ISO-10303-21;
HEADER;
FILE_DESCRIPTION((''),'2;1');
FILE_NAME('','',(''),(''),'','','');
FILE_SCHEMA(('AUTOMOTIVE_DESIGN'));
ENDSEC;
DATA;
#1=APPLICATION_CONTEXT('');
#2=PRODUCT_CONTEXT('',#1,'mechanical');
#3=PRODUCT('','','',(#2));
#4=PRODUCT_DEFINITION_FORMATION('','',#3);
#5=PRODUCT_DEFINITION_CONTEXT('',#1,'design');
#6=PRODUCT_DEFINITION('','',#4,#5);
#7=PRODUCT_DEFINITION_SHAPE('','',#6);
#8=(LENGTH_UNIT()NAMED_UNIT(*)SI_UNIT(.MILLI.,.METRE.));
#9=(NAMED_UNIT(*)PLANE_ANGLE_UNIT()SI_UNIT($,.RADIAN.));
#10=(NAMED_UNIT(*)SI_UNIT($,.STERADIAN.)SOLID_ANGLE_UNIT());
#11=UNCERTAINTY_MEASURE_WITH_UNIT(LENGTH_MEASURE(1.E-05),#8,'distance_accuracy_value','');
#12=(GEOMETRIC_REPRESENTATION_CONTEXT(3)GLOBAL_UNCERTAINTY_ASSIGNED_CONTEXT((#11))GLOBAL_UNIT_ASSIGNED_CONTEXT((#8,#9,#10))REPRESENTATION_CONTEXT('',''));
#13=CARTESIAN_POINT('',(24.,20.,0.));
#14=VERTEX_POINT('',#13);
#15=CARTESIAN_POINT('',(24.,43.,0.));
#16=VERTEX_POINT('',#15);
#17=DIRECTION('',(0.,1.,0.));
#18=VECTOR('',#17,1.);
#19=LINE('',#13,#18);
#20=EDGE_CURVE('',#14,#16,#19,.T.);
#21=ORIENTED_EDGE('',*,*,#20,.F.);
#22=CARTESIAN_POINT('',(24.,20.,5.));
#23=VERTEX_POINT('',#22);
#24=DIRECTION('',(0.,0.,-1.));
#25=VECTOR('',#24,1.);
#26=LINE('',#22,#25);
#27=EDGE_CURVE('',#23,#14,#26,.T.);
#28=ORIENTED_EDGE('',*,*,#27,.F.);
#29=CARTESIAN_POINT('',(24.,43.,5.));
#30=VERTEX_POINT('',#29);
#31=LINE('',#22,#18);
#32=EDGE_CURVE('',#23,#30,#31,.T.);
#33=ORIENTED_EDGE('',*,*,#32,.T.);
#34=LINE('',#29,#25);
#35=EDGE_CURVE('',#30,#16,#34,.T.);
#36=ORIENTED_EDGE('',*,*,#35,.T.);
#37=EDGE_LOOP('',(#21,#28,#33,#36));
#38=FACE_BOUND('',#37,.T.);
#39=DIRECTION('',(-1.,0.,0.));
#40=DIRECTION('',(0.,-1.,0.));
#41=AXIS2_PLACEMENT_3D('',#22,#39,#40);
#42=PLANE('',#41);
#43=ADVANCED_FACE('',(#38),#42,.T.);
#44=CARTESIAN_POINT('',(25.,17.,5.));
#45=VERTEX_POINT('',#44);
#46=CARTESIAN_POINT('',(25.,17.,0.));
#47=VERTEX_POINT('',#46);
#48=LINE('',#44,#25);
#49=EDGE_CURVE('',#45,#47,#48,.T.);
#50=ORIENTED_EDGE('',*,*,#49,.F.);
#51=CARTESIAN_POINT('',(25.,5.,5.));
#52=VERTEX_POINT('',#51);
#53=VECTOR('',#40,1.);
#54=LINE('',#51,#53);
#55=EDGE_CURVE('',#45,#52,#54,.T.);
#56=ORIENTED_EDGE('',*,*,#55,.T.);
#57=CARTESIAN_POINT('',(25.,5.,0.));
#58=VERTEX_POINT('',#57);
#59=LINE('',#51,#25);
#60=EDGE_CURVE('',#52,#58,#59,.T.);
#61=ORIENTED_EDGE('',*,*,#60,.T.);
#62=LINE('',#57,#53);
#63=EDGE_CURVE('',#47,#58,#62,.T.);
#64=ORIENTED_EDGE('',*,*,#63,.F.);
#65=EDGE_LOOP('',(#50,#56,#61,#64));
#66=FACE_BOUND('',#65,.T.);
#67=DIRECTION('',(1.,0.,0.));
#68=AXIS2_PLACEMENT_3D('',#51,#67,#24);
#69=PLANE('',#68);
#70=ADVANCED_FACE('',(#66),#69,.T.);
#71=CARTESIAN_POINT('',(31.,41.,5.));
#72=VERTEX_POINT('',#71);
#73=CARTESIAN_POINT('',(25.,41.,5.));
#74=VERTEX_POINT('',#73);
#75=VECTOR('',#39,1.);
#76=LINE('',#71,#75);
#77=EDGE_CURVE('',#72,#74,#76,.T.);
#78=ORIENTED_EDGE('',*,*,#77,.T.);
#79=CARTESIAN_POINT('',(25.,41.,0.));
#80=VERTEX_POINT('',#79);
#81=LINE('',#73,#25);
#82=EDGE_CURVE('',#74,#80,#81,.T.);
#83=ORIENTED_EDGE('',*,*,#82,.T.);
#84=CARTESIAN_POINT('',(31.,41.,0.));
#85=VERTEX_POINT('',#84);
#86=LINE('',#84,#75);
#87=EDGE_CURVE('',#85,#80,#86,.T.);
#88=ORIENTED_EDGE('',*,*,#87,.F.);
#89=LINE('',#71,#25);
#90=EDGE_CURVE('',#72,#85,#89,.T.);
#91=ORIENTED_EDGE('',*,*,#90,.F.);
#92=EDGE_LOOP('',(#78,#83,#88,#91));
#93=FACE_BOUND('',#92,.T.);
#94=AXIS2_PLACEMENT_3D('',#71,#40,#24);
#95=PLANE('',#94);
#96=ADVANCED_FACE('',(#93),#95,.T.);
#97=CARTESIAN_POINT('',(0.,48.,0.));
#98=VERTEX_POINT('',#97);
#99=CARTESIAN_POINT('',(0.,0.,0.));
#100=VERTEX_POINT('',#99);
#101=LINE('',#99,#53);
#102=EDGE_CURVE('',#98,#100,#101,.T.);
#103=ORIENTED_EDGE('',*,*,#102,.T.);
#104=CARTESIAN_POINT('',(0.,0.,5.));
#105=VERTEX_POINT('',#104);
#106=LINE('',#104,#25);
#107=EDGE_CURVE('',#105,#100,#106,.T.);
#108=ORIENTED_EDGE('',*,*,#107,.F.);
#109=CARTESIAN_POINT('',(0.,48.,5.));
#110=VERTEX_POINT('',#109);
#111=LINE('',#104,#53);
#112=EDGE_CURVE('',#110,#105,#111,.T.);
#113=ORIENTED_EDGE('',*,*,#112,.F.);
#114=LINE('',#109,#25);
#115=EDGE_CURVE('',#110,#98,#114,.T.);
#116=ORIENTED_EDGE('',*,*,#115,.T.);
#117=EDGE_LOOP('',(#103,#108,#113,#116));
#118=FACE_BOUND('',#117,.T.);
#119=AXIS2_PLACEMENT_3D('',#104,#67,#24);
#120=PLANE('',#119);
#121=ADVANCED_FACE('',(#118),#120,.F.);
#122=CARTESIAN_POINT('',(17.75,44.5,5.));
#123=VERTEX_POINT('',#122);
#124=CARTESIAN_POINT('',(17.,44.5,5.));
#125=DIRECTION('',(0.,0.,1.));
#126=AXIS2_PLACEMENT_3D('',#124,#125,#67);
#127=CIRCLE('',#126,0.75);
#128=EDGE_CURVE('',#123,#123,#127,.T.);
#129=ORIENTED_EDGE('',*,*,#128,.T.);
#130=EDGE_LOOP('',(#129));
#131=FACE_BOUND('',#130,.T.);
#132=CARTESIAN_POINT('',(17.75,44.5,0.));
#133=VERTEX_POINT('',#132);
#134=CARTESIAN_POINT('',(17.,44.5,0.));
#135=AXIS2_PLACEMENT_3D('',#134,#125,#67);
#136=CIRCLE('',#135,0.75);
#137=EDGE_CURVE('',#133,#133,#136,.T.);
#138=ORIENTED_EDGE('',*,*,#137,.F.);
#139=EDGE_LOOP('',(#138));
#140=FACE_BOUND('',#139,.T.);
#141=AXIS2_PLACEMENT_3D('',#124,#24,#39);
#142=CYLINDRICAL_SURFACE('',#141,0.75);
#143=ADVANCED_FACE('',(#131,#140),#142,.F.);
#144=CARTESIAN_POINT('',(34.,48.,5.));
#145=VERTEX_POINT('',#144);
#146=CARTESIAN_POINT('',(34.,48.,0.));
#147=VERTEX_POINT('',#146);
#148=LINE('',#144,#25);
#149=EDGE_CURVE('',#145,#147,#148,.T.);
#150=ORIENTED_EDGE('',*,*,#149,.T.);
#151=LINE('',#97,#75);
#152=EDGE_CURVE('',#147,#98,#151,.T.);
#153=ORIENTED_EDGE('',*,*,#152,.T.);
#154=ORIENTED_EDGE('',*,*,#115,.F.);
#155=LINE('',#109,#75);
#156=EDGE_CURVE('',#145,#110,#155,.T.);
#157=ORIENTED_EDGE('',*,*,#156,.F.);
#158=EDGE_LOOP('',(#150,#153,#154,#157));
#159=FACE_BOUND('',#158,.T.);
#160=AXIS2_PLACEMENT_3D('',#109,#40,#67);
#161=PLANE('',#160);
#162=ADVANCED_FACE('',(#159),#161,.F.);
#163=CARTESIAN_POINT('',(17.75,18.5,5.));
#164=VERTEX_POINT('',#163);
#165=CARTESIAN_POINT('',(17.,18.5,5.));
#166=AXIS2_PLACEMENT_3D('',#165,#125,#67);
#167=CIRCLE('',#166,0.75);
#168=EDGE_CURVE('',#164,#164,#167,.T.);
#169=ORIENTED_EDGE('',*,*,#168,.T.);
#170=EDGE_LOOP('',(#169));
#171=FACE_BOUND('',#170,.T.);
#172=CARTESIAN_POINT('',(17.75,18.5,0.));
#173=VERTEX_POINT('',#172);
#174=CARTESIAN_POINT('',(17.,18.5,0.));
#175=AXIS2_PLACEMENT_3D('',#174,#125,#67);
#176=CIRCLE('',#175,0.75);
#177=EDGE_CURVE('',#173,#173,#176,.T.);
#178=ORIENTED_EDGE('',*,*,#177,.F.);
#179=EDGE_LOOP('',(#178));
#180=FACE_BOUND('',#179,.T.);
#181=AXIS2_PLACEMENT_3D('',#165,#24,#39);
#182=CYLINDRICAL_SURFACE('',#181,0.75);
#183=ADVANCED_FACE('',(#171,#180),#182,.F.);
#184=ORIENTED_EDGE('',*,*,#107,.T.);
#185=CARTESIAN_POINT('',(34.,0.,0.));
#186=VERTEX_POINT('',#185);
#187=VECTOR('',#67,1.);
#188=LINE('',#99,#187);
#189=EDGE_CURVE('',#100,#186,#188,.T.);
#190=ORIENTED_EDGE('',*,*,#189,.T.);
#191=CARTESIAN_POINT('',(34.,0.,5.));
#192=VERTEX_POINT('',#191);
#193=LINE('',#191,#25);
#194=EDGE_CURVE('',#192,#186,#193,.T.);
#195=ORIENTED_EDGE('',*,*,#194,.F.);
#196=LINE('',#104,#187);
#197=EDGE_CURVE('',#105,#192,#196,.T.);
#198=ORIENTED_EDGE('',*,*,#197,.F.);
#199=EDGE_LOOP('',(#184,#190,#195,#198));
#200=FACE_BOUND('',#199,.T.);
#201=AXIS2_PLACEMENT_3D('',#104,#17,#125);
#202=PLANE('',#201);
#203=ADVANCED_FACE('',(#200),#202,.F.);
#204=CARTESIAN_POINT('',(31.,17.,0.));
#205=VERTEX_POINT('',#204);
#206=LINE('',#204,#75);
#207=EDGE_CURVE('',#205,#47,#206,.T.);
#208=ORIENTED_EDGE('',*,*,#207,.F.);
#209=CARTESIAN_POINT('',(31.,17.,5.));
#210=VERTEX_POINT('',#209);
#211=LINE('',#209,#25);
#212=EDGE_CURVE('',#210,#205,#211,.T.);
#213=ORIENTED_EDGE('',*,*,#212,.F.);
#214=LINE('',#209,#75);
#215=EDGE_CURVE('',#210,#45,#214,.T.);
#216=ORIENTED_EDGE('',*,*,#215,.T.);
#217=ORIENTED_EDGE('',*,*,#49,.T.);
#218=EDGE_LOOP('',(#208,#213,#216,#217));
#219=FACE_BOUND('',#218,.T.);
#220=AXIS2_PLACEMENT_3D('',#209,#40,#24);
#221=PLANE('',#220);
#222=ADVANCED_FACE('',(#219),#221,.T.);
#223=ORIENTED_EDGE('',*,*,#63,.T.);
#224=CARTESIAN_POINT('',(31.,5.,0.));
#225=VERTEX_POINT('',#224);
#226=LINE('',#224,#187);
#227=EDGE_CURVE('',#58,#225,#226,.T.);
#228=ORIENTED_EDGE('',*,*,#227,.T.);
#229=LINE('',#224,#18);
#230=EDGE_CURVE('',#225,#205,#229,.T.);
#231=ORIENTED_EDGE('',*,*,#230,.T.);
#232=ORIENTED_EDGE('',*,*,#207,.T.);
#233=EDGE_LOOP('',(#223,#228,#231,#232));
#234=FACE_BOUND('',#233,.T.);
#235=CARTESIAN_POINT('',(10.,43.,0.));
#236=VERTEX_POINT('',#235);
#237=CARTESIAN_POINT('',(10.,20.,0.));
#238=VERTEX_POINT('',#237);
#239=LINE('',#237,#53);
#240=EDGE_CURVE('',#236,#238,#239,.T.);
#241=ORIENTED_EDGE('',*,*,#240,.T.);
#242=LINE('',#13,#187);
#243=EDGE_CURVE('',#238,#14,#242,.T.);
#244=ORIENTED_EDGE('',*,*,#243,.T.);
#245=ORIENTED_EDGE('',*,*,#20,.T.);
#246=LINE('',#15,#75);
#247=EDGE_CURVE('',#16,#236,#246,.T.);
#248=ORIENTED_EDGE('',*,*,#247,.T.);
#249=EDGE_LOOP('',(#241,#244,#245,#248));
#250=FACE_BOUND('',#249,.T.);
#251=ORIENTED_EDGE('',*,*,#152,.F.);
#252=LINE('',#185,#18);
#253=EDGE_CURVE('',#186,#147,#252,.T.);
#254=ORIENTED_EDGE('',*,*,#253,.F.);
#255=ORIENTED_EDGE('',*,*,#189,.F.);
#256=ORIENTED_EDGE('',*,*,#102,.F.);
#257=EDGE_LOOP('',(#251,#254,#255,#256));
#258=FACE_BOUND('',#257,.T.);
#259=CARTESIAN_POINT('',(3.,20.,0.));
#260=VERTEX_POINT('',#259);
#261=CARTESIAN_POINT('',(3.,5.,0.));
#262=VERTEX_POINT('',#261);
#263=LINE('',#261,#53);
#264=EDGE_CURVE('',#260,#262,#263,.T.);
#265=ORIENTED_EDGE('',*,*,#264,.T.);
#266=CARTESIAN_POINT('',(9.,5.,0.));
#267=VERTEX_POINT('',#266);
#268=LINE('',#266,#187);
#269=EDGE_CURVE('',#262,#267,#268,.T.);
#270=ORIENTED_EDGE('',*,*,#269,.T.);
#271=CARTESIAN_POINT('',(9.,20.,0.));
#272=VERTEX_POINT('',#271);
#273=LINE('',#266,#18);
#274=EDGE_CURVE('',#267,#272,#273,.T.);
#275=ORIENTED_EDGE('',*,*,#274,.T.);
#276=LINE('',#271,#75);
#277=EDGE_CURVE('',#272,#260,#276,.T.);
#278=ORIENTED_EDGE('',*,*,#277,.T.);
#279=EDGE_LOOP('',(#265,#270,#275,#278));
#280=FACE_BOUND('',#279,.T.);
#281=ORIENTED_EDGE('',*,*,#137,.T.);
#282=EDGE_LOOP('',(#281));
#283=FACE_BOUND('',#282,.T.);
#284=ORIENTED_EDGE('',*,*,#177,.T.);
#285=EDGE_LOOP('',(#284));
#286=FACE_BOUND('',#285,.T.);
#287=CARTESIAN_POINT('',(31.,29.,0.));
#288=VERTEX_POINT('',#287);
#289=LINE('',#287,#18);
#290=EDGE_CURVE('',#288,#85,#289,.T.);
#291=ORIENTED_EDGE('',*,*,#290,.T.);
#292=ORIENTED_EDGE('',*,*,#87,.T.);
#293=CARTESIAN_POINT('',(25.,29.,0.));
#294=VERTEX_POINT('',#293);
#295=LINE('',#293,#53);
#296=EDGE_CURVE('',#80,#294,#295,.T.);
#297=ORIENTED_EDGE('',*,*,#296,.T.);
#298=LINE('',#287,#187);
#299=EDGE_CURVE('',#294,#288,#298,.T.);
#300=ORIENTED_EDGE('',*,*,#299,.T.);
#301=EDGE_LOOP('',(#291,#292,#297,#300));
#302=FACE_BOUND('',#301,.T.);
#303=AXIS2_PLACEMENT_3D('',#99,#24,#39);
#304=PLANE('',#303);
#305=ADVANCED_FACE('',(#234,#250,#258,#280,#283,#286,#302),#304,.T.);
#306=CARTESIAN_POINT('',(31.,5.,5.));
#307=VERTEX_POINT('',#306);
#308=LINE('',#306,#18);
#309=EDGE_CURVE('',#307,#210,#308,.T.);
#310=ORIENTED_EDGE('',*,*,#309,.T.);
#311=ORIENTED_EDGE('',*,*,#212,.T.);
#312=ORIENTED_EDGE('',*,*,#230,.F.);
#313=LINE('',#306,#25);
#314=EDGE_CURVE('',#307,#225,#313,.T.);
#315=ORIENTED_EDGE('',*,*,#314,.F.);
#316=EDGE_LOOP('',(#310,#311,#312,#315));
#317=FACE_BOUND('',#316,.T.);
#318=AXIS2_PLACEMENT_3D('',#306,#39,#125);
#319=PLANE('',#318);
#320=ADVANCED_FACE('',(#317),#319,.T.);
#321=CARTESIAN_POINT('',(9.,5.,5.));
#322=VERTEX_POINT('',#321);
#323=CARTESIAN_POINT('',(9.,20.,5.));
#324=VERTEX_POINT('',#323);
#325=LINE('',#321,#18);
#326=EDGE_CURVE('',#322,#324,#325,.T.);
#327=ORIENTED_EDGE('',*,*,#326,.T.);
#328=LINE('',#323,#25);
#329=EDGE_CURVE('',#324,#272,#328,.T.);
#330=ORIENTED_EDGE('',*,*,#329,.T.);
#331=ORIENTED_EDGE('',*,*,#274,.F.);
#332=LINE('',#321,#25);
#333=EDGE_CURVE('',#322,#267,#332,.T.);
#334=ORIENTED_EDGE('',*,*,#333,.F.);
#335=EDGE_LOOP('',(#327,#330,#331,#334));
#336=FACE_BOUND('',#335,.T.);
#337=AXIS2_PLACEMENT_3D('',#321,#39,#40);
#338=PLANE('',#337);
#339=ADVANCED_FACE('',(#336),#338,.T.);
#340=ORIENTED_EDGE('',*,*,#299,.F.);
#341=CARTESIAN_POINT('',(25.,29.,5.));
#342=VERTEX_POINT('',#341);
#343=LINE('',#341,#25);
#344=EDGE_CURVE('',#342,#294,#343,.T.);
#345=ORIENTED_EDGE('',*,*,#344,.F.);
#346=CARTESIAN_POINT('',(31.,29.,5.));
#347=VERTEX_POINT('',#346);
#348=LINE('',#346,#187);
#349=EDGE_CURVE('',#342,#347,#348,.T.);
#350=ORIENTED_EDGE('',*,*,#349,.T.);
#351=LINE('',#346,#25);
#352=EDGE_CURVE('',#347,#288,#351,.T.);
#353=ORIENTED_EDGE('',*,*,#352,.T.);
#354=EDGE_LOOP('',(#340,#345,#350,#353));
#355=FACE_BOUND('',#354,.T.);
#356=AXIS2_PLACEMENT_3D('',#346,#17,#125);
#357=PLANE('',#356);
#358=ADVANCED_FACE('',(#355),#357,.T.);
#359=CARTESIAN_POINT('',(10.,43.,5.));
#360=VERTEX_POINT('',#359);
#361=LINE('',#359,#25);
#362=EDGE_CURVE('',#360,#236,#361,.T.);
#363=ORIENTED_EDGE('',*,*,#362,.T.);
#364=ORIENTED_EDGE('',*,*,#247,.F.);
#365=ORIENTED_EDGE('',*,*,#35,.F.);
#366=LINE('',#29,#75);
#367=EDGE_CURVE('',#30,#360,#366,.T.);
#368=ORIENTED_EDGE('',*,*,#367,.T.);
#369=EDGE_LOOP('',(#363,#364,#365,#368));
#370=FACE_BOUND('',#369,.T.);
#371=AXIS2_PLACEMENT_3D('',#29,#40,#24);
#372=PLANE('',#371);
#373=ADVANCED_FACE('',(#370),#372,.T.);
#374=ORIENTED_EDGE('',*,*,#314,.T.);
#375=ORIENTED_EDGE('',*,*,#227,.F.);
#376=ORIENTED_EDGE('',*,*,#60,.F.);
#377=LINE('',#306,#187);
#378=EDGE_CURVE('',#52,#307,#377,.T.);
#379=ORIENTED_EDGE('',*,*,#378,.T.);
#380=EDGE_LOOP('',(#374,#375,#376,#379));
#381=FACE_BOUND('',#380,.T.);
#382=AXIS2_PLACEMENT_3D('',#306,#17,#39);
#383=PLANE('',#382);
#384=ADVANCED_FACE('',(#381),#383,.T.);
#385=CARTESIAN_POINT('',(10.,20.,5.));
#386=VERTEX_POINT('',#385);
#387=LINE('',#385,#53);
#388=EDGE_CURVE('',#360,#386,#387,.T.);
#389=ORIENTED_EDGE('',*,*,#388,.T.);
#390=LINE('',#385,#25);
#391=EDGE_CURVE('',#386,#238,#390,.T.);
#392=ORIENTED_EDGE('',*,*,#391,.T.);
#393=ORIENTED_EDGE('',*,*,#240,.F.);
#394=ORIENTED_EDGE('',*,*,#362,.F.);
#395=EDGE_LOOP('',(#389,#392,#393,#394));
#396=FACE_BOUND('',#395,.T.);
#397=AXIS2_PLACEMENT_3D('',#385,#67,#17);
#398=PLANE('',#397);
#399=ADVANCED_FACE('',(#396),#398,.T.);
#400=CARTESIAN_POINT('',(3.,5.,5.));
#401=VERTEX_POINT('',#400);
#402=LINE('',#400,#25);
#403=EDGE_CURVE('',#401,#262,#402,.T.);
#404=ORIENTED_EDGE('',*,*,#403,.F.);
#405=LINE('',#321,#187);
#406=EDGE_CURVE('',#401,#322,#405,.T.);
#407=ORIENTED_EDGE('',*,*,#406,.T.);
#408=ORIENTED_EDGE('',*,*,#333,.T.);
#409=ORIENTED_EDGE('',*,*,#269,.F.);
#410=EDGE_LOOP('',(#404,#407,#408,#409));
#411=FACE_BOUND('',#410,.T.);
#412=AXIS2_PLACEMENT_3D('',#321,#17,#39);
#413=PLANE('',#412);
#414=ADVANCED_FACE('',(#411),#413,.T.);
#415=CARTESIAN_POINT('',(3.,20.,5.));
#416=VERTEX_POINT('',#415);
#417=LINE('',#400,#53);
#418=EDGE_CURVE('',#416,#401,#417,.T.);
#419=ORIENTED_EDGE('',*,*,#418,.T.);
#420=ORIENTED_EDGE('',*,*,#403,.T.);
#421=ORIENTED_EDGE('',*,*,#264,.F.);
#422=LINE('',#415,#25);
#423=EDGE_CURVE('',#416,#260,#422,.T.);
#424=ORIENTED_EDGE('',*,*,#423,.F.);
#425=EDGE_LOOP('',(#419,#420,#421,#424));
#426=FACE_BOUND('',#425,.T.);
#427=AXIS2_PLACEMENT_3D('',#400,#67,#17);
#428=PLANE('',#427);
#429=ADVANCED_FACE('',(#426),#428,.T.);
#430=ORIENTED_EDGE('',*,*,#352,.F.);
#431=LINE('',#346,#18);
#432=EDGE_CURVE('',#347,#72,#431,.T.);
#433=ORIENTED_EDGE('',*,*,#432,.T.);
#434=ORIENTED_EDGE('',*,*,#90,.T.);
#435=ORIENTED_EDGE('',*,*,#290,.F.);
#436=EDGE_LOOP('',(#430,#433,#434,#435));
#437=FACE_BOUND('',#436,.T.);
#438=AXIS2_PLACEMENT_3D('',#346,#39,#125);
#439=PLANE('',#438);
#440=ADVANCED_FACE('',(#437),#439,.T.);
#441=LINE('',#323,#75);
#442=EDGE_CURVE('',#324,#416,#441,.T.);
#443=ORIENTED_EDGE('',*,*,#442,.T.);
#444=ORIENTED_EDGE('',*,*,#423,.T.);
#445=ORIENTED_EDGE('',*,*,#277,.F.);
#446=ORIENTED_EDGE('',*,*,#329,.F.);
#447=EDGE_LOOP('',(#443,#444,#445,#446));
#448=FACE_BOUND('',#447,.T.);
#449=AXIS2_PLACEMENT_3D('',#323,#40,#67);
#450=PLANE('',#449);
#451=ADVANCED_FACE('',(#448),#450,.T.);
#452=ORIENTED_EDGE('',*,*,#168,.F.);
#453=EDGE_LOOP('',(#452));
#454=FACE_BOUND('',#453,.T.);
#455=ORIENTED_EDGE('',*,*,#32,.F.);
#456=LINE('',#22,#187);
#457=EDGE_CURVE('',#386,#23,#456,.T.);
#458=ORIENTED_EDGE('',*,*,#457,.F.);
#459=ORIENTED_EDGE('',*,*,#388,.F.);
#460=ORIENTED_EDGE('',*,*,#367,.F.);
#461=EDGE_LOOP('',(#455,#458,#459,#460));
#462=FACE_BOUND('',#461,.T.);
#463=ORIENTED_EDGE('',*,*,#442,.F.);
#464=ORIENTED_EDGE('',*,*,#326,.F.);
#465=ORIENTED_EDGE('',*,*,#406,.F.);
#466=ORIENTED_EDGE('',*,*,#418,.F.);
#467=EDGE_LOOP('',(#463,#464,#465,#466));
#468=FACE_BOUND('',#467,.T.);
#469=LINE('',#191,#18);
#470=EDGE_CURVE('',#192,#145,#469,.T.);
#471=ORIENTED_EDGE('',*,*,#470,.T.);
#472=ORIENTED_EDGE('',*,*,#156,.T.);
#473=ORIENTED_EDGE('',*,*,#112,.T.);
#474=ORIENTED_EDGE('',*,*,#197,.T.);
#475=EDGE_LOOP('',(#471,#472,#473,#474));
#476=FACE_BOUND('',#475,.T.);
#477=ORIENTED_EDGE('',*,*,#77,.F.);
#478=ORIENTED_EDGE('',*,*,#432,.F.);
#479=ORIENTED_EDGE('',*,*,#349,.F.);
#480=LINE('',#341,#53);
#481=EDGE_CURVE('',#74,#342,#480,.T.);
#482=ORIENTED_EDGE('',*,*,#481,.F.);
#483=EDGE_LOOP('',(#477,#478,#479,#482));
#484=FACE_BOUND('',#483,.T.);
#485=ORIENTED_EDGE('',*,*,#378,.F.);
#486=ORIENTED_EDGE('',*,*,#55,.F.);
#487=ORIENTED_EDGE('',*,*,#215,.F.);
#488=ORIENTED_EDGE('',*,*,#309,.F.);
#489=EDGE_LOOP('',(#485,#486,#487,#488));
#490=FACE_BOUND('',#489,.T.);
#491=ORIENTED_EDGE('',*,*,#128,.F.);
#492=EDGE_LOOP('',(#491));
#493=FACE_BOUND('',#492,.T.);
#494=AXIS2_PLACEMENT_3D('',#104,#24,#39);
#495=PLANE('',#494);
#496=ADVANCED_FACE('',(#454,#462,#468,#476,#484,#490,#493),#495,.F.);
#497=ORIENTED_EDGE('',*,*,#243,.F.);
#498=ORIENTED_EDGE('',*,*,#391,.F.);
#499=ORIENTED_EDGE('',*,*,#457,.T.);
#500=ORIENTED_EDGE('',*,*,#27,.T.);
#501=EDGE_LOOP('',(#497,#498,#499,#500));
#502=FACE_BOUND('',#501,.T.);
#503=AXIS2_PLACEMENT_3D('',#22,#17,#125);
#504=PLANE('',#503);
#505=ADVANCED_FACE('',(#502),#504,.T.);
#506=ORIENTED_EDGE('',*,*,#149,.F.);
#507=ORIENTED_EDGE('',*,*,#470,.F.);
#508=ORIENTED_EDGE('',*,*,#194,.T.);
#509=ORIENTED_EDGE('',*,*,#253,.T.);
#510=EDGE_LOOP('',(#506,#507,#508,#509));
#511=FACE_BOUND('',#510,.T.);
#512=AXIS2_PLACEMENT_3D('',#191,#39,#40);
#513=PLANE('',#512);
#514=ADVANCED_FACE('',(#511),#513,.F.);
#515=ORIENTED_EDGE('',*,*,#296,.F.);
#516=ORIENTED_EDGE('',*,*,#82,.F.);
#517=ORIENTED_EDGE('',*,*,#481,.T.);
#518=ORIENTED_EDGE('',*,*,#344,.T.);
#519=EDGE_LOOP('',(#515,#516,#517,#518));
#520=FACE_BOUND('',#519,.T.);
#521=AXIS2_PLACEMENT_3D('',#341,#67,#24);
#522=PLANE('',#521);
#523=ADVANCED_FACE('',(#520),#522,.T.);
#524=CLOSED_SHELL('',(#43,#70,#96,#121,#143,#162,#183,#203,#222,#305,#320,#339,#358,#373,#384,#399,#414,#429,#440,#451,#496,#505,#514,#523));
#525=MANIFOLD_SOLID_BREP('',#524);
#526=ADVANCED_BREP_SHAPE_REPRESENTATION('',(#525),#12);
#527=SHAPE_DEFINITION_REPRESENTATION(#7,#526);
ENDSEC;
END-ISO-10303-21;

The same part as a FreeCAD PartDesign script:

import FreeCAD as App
import Part
import Sketcher


def add_polygon(sketch, points):
    """Adds a closed chain of lines whose ends are joined by coincident constraints."""
    first, n = sketch.GeometryCount, len(points)
    for a, b in zip(points, points[1:] + points[:1]):
        sketch.addGeometry(Part.LineSegment(App.Vector(*a, 0), App.Vector(*b, 0)), False)
    for i in range(n):
        sketch.addConstraint(Sketcher.Constraint("Coincident", first + i, 2, first + (i + 1) % n, 1))

doc = App.newDocument("Part")
body = doc.addObject("PartDesign::Body", "Body")

sketch1 = body.newObject("Sketcher::SketchObject", "Sketch")
sketch1.AttachmentSupport = (doc.getObject("XY_Plane"), [""])
sketch1.MapMode = "FlatFace"
add_polygon(sketch1, [(0, 48), (0, 0), (34, 0), (34, 48)])
add_polygon(sketch1, [(9, 5), (3, 5), (3, 20), (9, 20)])
add_polygon(sketch1, [(31, 5), (25, 5), (25, 17), (31, 17)])
sketch1.addGeometry(Part.Circle(App.Vector(17, 18.5, 0), App.Vector(0, 0, 1), 0.8), False)
add_polygon(sketch1, [(24, 20), (10, 20), (10, 43), (24, 43)])
add_polygon(sketch1, [(31, 29), (25, 29), (25, 41), (31, 41)])
sketch1.addGeometry(Part.Circle(App.Vector(17, 44.5, 0), App.Vector(0, 0, 1), 0.8), False)
sketch1.addConstraint([
    Sketcher.Constraint("Vertical", 0),
    Sketcher.Constraint("Horizontal", 1),
    Sketcher.Constraint("Vertical", 2),
    Sketcher.Constraint("Horizontal", 3),
    Sketcher.Constraint("Horizontal", 4),
    Sketcher.Constraint("Vertical", 5),
    Sketcher.Constraint("Horizontal", 6),
    Sketcher.Constraint("Vertical", 7),
    Sketcher.Constraint("Horizontal", 8),
    Sketcher.Constraint("Vertical", 9),
    Sketcher.Constraint("Horizontal", 10),
    Sketcher.Constraint("Vertical", 11),
    Sketcher.Constraint("Horizontal", 13),
    Sketcher.Constraint("Vertical", 14),
    Sketcher.Constraint("Horizontal", 15),
    Sketcher.Constraint("Vertical", 16),
    Sketcher.Constraint("Horizontal", 17),
    Sketcher.Constraint("Vertical", 18),
    Sketcher.Constraint("Horizontal", 19),
    Sketcher.Constraint("Vertical", 20),
    Sketcher.Constraint("Coincident", 0, 2, -1, 1),
    Sketcher.Constraint("Equal", 12, 21),
    Sketcher.Constraint("Horizontal", 7, 2, 8, 2),
    Sketcher.Constraint("Horizontal", 6, 2, 13, 2),
    Sketcher.Constraint("Vertical", 12, 3, 21, 3),
    Sketcher.Constraint("Vertical", 9, 2, 17, 2),
    Sketcher.Constraint("Vertical", 11, 2, 19, 2),
    Sketcher.Constraint("Equal", 6, 8),
    Sketcher.Constraint("Equal", 11, 18),
    Sketcher.Constraint("Diameter", 12, 1.5),
    Sketcher.Constraint("DistanceX", 1, 1, 1, 2, 34.0),
    Sketcher.Constraint("DistanceX", 4, 2, 4, 1, 6.0),
    Sketcher.Constraint("DistanceX", 13, 2, 13, 1, 14.0),
    Sketcher.Constraint("DistanceY", 0, 2, 0, 1, 48.0),
    Sketcher.Constraint("DistanceY", 5, 1, 5, 2, 15.0),
    Sketcher.Constraint("DistanceY", 9, 1, 9, 2, 12.0),
    Sketcher.Constraint("DistanceY", 14, 1, 14, 2, 23.0),
    Sketcher.Constraint("DistanceX", -1, 1, 12, 3, 17.0),
    Sketcher.Constraint("DistanceX", -1, 1, 4, 2, 3.0),
    Sketcher.Constraint("DistanceY", -1, 1, 4, 2, 5.0),
    Sketcher.Constraint("DistanceX", -1, 1, 8, 2, 25.0),
    Sketcher.Constraint("DistanceX", -1, 1, 13, 2, 10.0),
    Sketcher.Constraint("DistanceY", -1, 1, 17, 2, 29.0),
    Sketcher.Constraint("DistanceY", 12, 3, 21, 3, 26.0),
    Sketcher.Constraint("DistanceY", -1, 1, 12, 3, 18.5),
])
pad1 = body.newObject("PartDesign::Pad", "Pad")
pad1.Profile = sketch1
pad1.Length = 5

doc.recompute()
